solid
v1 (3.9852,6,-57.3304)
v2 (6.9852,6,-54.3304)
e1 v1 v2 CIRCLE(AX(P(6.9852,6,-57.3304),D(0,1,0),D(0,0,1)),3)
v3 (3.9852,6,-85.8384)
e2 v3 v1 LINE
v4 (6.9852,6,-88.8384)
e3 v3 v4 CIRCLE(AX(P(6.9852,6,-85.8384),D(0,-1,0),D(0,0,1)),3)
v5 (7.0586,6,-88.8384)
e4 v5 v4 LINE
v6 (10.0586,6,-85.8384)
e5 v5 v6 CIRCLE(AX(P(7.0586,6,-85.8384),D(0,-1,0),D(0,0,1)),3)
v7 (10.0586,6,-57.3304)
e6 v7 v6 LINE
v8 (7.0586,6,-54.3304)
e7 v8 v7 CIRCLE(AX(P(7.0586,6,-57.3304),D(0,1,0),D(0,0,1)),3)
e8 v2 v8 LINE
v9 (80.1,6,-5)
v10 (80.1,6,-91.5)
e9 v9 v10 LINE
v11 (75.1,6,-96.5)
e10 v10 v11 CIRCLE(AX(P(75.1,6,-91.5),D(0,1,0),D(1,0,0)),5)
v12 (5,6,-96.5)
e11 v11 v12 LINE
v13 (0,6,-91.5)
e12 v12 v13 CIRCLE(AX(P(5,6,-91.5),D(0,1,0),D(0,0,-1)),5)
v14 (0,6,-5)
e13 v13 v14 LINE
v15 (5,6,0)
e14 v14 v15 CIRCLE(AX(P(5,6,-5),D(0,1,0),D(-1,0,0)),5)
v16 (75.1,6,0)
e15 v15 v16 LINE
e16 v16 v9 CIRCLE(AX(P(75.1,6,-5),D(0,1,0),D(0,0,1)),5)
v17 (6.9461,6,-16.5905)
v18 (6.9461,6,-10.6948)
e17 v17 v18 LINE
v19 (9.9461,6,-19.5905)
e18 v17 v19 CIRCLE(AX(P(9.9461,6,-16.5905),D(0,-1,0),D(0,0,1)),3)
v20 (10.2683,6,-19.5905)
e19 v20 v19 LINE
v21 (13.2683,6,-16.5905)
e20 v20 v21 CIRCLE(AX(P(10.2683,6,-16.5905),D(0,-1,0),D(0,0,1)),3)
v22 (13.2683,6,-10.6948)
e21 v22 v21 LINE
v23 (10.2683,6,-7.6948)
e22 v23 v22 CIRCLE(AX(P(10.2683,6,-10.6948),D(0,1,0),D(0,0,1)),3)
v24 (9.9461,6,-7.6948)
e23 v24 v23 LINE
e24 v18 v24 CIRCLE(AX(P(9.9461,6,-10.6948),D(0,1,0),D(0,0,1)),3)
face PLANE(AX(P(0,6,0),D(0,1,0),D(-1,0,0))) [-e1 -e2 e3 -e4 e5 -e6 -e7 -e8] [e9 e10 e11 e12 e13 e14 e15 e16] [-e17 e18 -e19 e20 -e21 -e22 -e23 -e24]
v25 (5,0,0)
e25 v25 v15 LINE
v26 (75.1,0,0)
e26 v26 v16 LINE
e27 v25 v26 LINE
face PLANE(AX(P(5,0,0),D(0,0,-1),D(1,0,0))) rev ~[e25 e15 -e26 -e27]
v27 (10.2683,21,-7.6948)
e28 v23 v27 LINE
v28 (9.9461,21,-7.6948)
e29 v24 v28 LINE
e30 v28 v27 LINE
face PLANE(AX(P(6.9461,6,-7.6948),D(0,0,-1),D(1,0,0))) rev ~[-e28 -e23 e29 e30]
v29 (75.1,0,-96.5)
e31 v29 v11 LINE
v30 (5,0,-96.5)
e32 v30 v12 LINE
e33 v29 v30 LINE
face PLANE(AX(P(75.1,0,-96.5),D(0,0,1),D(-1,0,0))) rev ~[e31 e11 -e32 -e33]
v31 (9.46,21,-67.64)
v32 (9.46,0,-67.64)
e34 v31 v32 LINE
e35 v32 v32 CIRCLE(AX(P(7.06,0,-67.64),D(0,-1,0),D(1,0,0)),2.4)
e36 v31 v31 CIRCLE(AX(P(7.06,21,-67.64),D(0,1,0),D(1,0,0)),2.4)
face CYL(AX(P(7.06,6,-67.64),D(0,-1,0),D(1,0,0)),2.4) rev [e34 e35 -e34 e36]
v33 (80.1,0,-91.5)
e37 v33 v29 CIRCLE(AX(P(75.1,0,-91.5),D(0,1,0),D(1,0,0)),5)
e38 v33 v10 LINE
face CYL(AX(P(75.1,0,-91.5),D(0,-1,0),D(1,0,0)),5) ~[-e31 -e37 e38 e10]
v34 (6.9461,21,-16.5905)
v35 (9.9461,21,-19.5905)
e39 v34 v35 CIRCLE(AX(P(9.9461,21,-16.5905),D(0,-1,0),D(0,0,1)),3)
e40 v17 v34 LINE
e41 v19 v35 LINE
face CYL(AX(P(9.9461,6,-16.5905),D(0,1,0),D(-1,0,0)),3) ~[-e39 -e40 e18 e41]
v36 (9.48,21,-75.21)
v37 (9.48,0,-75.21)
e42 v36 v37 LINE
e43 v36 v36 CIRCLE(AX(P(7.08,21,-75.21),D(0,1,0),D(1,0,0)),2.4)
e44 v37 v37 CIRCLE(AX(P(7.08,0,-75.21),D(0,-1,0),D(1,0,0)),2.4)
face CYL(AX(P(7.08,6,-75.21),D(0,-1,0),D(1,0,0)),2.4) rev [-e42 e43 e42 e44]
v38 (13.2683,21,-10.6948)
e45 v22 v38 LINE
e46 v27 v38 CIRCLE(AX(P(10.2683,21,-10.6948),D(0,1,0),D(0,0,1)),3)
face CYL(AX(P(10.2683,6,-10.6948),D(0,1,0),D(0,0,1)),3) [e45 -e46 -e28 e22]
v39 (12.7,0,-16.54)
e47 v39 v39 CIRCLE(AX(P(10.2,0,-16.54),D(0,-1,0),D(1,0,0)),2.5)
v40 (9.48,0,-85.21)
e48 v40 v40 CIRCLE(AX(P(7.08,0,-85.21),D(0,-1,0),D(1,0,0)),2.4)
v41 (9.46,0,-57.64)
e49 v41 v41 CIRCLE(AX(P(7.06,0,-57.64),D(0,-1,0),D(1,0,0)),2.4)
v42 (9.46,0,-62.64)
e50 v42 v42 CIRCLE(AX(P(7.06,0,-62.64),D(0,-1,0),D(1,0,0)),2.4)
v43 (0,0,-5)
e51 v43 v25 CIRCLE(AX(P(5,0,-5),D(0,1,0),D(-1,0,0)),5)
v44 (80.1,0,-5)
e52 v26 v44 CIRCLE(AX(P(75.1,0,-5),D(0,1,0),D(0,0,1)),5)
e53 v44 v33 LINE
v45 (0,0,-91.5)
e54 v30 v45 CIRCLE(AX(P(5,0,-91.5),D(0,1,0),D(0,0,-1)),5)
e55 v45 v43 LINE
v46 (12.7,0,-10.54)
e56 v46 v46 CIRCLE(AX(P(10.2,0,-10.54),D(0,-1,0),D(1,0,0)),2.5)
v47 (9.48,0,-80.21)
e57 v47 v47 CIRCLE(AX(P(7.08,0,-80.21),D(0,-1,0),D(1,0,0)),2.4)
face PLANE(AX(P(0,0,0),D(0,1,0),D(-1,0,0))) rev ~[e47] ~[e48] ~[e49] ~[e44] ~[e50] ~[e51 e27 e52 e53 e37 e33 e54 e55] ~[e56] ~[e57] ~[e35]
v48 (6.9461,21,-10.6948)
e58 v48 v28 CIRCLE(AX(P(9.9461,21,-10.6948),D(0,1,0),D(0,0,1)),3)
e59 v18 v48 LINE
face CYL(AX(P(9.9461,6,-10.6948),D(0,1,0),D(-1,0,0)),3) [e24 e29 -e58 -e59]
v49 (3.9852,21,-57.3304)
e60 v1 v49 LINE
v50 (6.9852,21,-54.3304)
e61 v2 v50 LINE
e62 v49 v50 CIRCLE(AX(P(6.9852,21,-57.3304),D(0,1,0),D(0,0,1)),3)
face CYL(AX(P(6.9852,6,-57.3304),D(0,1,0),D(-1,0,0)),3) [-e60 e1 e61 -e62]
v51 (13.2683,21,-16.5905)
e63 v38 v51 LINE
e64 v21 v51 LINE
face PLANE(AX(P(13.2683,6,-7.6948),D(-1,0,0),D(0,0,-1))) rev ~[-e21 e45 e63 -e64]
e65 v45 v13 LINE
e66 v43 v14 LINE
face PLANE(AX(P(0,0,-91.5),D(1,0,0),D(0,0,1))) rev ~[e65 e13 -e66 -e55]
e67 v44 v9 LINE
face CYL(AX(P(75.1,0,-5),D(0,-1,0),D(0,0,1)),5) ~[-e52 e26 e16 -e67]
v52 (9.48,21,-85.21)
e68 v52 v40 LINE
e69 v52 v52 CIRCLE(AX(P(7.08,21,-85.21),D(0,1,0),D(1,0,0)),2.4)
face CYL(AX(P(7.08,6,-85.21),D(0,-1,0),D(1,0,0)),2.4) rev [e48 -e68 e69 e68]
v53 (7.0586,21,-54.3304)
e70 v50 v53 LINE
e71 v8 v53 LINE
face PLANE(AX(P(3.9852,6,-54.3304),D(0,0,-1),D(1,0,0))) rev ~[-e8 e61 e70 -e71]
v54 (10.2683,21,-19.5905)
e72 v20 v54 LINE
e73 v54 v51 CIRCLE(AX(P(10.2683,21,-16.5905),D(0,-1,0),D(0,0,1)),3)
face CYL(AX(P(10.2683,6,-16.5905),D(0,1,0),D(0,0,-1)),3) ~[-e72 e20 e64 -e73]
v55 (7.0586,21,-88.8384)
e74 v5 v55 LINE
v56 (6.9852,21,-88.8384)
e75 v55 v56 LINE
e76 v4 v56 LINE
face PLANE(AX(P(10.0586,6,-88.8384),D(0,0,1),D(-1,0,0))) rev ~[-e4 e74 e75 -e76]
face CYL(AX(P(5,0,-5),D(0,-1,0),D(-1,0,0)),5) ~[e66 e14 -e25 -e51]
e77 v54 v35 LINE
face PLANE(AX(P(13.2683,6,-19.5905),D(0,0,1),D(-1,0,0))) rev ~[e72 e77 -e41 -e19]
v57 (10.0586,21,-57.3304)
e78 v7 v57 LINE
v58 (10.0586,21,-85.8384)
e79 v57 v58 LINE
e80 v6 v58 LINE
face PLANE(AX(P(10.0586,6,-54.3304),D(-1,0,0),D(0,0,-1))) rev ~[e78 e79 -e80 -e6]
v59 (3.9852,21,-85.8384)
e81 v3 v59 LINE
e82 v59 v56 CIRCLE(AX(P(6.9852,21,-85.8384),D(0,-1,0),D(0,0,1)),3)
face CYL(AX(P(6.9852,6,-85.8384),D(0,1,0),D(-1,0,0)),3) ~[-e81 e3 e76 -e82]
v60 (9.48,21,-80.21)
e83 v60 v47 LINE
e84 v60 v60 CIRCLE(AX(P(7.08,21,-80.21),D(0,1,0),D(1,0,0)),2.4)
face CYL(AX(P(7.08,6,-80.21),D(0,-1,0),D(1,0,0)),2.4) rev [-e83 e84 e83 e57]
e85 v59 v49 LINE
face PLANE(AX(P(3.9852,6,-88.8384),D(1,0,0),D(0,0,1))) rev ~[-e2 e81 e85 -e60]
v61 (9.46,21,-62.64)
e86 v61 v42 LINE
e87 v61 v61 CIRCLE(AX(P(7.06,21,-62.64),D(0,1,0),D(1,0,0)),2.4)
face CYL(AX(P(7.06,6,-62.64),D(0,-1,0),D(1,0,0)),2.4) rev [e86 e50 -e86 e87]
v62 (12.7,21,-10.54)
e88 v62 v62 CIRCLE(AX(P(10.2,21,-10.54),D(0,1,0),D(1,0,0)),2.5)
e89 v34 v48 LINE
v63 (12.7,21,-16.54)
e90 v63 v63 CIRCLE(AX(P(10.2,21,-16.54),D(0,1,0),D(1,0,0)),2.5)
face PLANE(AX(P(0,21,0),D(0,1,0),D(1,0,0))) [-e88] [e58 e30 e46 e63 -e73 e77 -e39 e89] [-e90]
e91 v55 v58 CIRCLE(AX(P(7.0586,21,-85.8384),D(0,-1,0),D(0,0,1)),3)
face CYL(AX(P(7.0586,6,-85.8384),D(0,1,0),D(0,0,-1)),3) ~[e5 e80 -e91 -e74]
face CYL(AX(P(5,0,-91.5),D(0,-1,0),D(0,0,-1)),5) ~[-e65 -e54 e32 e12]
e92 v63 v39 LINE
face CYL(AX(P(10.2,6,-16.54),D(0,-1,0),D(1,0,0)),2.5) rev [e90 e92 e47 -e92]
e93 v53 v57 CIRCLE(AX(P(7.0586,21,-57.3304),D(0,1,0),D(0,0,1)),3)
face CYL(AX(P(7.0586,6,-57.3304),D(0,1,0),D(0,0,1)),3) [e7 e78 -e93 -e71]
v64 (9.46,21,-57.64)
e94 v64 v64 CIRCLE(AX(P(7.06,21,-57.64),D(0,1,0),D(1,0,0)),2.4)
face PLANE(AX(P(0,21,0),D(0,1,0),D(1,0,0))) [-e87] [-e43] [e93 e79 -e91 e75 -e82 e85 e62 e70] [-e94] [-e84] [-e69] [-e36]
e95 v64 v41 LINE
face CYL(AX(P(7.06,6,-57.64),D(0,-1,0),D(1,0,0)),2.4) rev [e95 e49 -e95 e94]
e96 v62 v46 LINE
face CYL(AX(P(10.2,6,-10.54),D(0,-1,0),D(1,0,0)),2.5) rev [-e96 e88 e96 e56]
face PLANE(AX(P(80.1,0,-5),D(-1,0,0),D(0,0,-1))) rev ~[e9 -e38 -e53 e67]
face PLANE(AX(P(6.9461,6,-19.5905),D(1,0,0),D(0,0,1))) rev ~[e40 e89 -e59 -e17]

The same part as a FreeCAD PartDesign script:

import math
import FreeCAD as App
import Part
import Sketcher
from FreeCAD import Vector


def edges_at(feature, points):
    """Names of the edges that pass closest to the given points."""
    edges = feature.Shape.Edges
    near = lambda p: min(range(len(edges)), key=lambda i: edges[i].distToShape(Part.Vertex(*p))[0])
    return sorted({f"Edge{near(p) + 1}" for p in points})

doc = App.newDocument("Part")
body = doc.addObject("PartDesign::Body", "Body")

sketch1 = doc.addObject("Sketcher::SketchObject", "Sketch")
body.addObject(sketch1)
sketch1.AttachmentSupport = (doc.XZ_Plane, [""])
sketch1.MapMode = "FlatFace"
sketch1.addGeometry(Part.ArcOfCircle(Part.Circle(Vector(5, -5, 0), Vector(0, 0, 1), 5), math.radians(90), math.radians(180)), False)
sketch1.addGeometry(Part.LineSegment(Vector(5, 0, 0), Vector(75, 0, 0)), False)
sketch1.addGeometry(Part.ArcOfCircle(Part.Circle(Vector(75, -5, 0), Vector(0, 0, 1), 5), math.radians(0), math.radians(90)), False)
sketch1.addGeometry(Part.LineSegment(Vector(80, -5, 0), Vector(80, -92, 0)), False)
sketch1.addGeometry(Part.ArcOfCircle(Part.Circle(Vector(75, -92, 0), Vector(0, 0, 1), 5), math.radians(-90), math.radians(0)), False)
sketch1.addGeometry(Part.LineSegment(Vector(75, -96, 0), Vector(5, -96, 0)), False)
sketch1.addGeometry(Part.ArcOfCircle(Part.Circle(Vector(5, -92, 0), Vector(0, 0, 1), 5), math.radians(180), math.radians(270)), False)
sketch1.addGeometry(Part.LineSegment(Vector(0, -92, 0), Vector(0, -5, 0)), False)
sketch1.addConstraint(Sketcher.Constraint("Tangent", 0, 1, 1, 1))
sketch1.addConstraint(Sketcher.Constraint("Tangent", 1, 2, 2, 2))
sketch1.addConstraint(Sketcher.Constraint("Tangent", 2, 1, 3, 1))
sketch1.addConstraint(Sketcher.Constraint("Tangent", 3, 2, 4, 2))
sketch1.addConstraint(Sketcher.Constraint("Tangent", 4, 1, 5, 1))
sketch1.addConstraint(Sketcher.Constraint("Tangent", 5, 2, 6, 2))
sketch1.addConstraint(Sketcher.Constraint("Tangent", 6, 1, 7, 1))
sketch1.addConstraint(Sketcher.Constraint("Tangent", 7, 2, 0, 2))
sketch1.addConstraint(Sketcher.Constraint("Horizontal", 1))
sketch1.addConstraint(Sketcher.Constraint("Vertical", 3))
sketch1.addConstraint(Sketcher.Constraint("Horizontal", 5))
sketch1.addConstraint(Sketcher.Constraint("Vertical", 7))
sketch1.addConstraint(Sketcher.Constraint("Equal", 0, 2))
sketch1.addConstraint(Sketcher.Constraint("Equal", 2, 4))
sketch1.addConstraint(Sketcher.Constraint("Equal", 4, 6))
sketch1.addConstraint(Sketcher.Constraint("PointOnObject", 0, 1, -1))
sketch1.addConstraint(Sketcher.Constraint("PointOnObject", 6, 1, -2))
sketch1.addConstraint(Sketcher.Constraint("Radius", 0, 5.0))
sketch1.addConstraint(Sketcher.Constraint("DistanceX", -1, 1, 2, 1, 80.1))
sketch1.addConstraint(Sketcher.Constraint("DistanceY", 4, 1, -1, 1, 96.5))
pad1 = doc.addObject("PartDesign::Pad", "Pad")
body.addObject(pad1)
pad1.Profile = sketch1
pad1.Length = 6
pad1.Reversed = True

sketch2 = doc.addObject("Sketcher::SketchObject", "Sketch001")
body.addObject(sketch2)
sketch2.AttachmentSupport = (doc.XZ_Plane, [""])
sketch2.MapMode = "FlatFace"
sketch2.addGeometry(Part.Circle(Vector(10.2, -10.5, 0), Vector(0, 0, 1), 2.5), False)
sketch2.addGeometry(Part.Circle(Vector(10.2, -16.5, 0), Vector(0, 0, 1), 2.5), False)
sketch2.addGeometry(Part.Circle(Vector(7.1, -57.6, 0), Vector(0, 0, 1), 2.4), False)
sketch2.addGeometry(Part.Circle(Vector(7.1, -62.6, 0), Vector(0, 0, 1), 2.4), False)
sketch2.addGeometry(Part.Circle(Vector(7.1, -67.6, 0), Vector(0, 0, 1), 2.4), False)
sketch2.addGeometry(Part.Circle(Vector(7.1, -75.2, 0), Vector(0, 0, 1), 2.4), False)
sketch2.addGeometry(Part.Circle(Vector(7.1, -80.2, 0), Vector(0, 0, 1), 2.4), False)
sketch2.addGeometry(Part.Circle(Vector(7.1, -85.2, 0), Vector(0, 0, 1), 2.4), False)
sketch2.addConstraint(Sketcher.Constraint("Equal", 0, 1))
sketch2.addConstraint(Sketcher.Constraint("Equal", 2, 3))
sketch2.addConstraint(Sketcher.Constraint("Equal", 3, 4))
sketch2.addConstraint(Sketcher.Constraint("Equal", 4, 5))
sketch2.addConstraint(Sketcher.Constraint("Equal", 5, 6))
sketch2.addConstraint(Sketcher.Constraint("Equal", 6, 7))
sketch2.addConstraint(Sketcher.Constraint("Vertical", 0, 3, 1, 3))
sketch2.addConstraint(Sketcher.Constraint("Vertical", 2, 3, 3, 3))
sketch2.addConstraint(Sketcher.Constraint("Vertical", 3, 3, 4, 3))
sketch2.addConstraint(Sketcher.Constraint("Vertical", 5, 3, 6, 3))
sketch2.addConstraint(Sketcher.Constraint("Vertical", 6, 3, 7, 3))
sketch2.addConstraint(Sketcher.Constraint("Diameter", 0, 5.0))
sketch2.addConstraint(Sketcher.Constraint("Diameter", 2, 4.8))
sketch2.addConstraint(Sketcher.Constraint("DistanceY", 1, 3, 0, 3, 6.0))
sketch2.addConstraint(Sketcher.Constraint("DistanceY", 3, 3, 2, 3, 5.0))
sketch2.addConstraint(Sketcher.Constraint("DistanceY", 4, 3, 3, 3, 5.0))
sketch2.addConstraint(Sketcher.Constraint("DistanceY", 6, 3, 5, 3, 5.0))
sketch2.addConstraint(Sketcher.Constraint("DistanceY", 7, 3, 6, 3, 5.0))
sketch2.addConstraint(Sketcher.Constraint("DistanceX", -1, 1, 0, 3, 10.2))
sketch2.addConstraint(Sketcher.Constraint("DistanceY", 2, 3, 1, 3, 41.1))
sketch2.addConstraint(Sketcher.Constraint("DistanceY", 0, 3, -1, 1, 10.54))
sketch2.addConstraint(Sketcher.Constraint("DistanceX", -1, 1, 2, 3, 7.06))
sketch2.addConstraint(Sketcher.Constraint("DistanceX", -1, 1, 5, 3, 7.08))
sketch2.addConstraint(Sketcher.Constraint("DistanceY", 5, 3, -1, 1, 75.21))
pocket1 = doc.addObject("PartDesign::Pocket", "Pocket")
body.addObject(pocket1)
pocket1.Profile = sketch2
pocket1.Length = 10

sketch3 = doc.addObject("Sketcher::SketchObject", "Sketch002")
body.addObject(sketch3)
sketch3.AttachmentSupport = (doc.XZ_Plane, [""])
sketch3.MapMode = "FlatFace"
sketch3.AttachmentOffset = App.Placement(Vector(0, 0, -6), App.Rotation())
sketch3.addGeometry(Part.LineSegment(Vector(6.9, -19.6, 0), Vector(6.9, -7.7, 0)), False)
sketch3.addGeometry(Part.LineSegment(Vector(6.9, -7.7, 0), Vector(13.3, -7.7, 0)), False)
sketch3.addGeometry(Part.LineSegment(Vector(13.3, -7.7, 0), Vector(13.3, -19.6, 0)), False)
sketch3.addGeometry(Part.LineSegment(Vector(13.3, -19.6, 0), Vector(6.9, -19.6, 0)), False)
sketch3.addGeometry(Part.Circle(Vector(10.2, -10.5, 0), Vector(0, 0, 1), 2.5), False)
sketch3.addGeometry(Part.Circle(Vector(10.2, -16.5, 0), Vector(0, 0, 1), 2.5), False)
sketch3.addConstraint(Sketcher.Constraint("Coincident", 0, 2, 1, 1))
sketch3.addConstraint(Sketcher.Constraint("Coincident", 1, 2, 2, 1))
sketch3.addConstraint(Sketcher.Constraint("Coincident", 2, 2, 3, 1))
sketch3.addConstraint(Sketcher.Constraint("Coincident", 3, 2, 0, 1))
sketch3.addConstraint(Sketcher.Constraint("Vertical", 0))
sketch3.addConstraint(Sketcher.Constraint("Horizontal", 1))
sketch3.addConstraint(Sketcher.Constraint("Vertical", 2))
sketch3.addConstraint(Sketcher.Constraint("Horizontal", 3))
sketch3.addConstraint(Sketcher.Constraint("Equal", 4, 5))
sketch3.addConstraint(Sketcher.Constraint("Vertical", 4, 3, 5, 3))
sketch3.addConstraint(Sketcher.Constraint("Diameter", 4, 5.0))
sketch3.addConstraint(Sketcher.Constraint("DistanceY", 5, 3, 4, 3, 6.0))
sketch3.addConstraint(Sketcher.Constraint("DistanceX", -1, 1, 4, 3, 10.2))
sketch3.addConstraint(Sketcher.Constraint("DistanceY", 4, 3, -1, 1, 10.54))
sketch3.addConstraint(Sketcher.Constraint("DistanceX", 1, 1, 1, 2, 6.3222))
sketch3.addConstraint(Sketcher.Constraint("DistanceY", 0, 1, 0, 2, 11.8957))
sketch3.addConstraint(Sketcher.Constraint("DistanceX", -1, 1, 0, 2, 6.946))
sketch3.addConstraint(Sketcher.Constraint("DistanceY", 0, 2, -1, 1, 7.6948))
pad2 = doc.addObject("PartDesign::Pad", "Pad001")
body.addObject(pad2)
pad2.Profile = sketch3
pad2.Length = 15
pad2.Reversed = True
doc.recompute()

fillet = doc.addObject("PartDesign::Fillet", "Fillet")
body.addObject(fillet)
fillet.Base = (pad2, edges_at(pad2, [
    (6.946, 13.5, -19.59),
    (6.946, 13.5, -7.695),
    (13.268, 13.5, -7.695),
    (13.268, 13.5, -19.59),
]))
fillet.Radius = 3

sketch4 = doc.addObject("Sketcher::SketchObject", "Sketch003")
body.addObject(sketch4)
sketch4.AttachmentSupport = (doc.XZ_Plane, [""])
sketch4.MapMode = "FlatFace"
sketch4.AttachmentOffset = App.Placement(Vector(0, 0, -6), App.Rotation())
sketch4.addGeometry(Part.LineSegment(Vector(4, -88.8, 0), Vector(4, -54.3, 0)), False)
sketch4.addGeometry(Part.LineSegment(Vector(4, -54.3, 0), Vector(10.1, -54.3, 0)), False)
sketch4.addGeometry(Part.LineSegment(Vector(10.1, -54.3, 0), Vector(10.1, -88.8, 0)), False)
sketch4.addGeometry(Part.LineSegment(Vector(10.1, -88.8, 0), Vector(4, -88.8, 0)), False)
sketch4.addGeometry(Part.Circle(Vector(7.1, -57.6, 0), Vector(0, 0, 1), 2.4), False)
sketch4.addGeometry(Part.Circle(Vector(7.1, -62.6, 0), Vector(0, 0, 1), 2.4), False)
sketch4.addGeometry(Part.Circle(Vector(7.1, -67.6, 0), Vector(0, 0, 1), 2.4), False)
sketch4.addGeometry(Part.Circle(Vector(7.1, -75.2, 0), Vector(0, 0, 1), 2.4), False)
sketch4.addGeometry(Part.Circle(Vector(7.1, -80.2, 0), Vector(0, 0, 1), 2.4), False)
sketch4.addGeometry(Part.Circle(Vector(7.1, -85.2, 0), Vector(0, 0, 1), 2.4), False)
sketch4.addConstraint(Sketcher.Constraint("Coincident", 0, 2, 1, 1))
sketch4.addConstraint(Sketcher.Constraint("Coincident", 1, 2, 2, 1))
sketch4.addConstraint(Sketcher.Constraint("Coincident", 2, 2, 3, 1))
sketch4.addConstraint(Sketcher.Constraint("Coincident", 3, 2, 0, 1))
sketch4.addConstraint(Sketcher.Constraint("Vertical", 0))
sketch4.addConstraint(Sketcher.Constraint("Horizontal", 1))
sketch4.addConstraint(Sketcher.Constraint("Vertical", 2))
sketch4.addConstraint(Sketcher.Constraint("Horizontal", 3))
sketch4.addConstraint(Sketcher.Constraint("Equal", 4, 5))
sketch4.addConstraint(Sketcher.Constraint("Equal", 5, 6))
sketch4.addConstraint(Sketcher.Constraint("Equal", 6, 7))
sketch4.addConstraint(Sketcher.Constraint("Equal", 7, 8))
sketch4.addConstraint(Sketcher.Constraint("Equal", 8, 9))
sketch4.addConstraint(Sketcher.Constraint("Vertical", 4, 3, 5, 3))
sketch4.addConstraint(Sketcher.Constraint("Vertical", 5, 3, 6, 3))
sketch4.addConstraint(Sketcher.Constraint("Vertical", 7, 3, 8, 3))
sketch4.addConstraint(Sketcher.Constraint("Vertical", 8, 3, 9, 3))
sketch4.addConstraint(Sketcher.Constraint("Diameter", 4, 4.8))
sketch4.addConstraint(Sketcher.Constraint("DistanceY", 5, 3, 4, 3, 5.0))
sketch4.addConstraint(Sketcher.Constraint("DistanceY", 6, 3, 5, 3, 5.0))
sketch4.addConstraint(Sketcher.Constraint("DistanceY", 8, 3, 7, 3, 5.0))
sketch4.addConstraint(Sketcher.Constraint("DistanceY", 9, 3, 8, 3, 5.0))
sketch4.addConstraint(Sketcher.Constraint("DistanceY", 0, 1, 0, 2, 34.508))
sketch4.addConstraint(Sketcher.Constraint("DistanceX", -1, 1, 4, 3, 7.06))
sketch4.addConstraint(Sketcher.Constraint("DistanceY", 4, 3, -1, 1, 57.64))
sketch4.addConstraint(Sketcher.Constraint("DistanceX", -1, 1, 7, 3, 7.08))
sketch4.addConstraint(Sketcher.Constraint("DistanceY", 7, 3, -1, 1, 75.21))
sketch4.addConstraint(Sketcher.Constraint("DistanceX", 1, 1, 1, 2, 6.0734))
sketch4.addConstraint(Sketcher.Constraint("DistanceX", -1, 1, 0, 2, 3.9852))
sketch4.addConstraint(Sketcher.Constraint("DistanceY", 0, 2, -1, 1, 54.3304))
pad3 = doc.addObject("PartDesign::Pad", "Pad002")
body.addObject(pad3)
pad3.Profile = sketch4
pad3.Length = 15
pad3.Reversed = True
doc.recompute()

fillet2 = doc.addObject("PartDesign::Fillet", "Fillet001")
body.addObject(fillet2)
fillet2.Base = (pad3, edges_at(pad3, [
    (3.985, 13.5, -54.33),
    (3.985, 13.5, -88.838),
    (10.059, 13.5, -88.838),
    (10.059, 13.5, -54.33),
]))
fillet2.Radius = 3

doc.recompute()
